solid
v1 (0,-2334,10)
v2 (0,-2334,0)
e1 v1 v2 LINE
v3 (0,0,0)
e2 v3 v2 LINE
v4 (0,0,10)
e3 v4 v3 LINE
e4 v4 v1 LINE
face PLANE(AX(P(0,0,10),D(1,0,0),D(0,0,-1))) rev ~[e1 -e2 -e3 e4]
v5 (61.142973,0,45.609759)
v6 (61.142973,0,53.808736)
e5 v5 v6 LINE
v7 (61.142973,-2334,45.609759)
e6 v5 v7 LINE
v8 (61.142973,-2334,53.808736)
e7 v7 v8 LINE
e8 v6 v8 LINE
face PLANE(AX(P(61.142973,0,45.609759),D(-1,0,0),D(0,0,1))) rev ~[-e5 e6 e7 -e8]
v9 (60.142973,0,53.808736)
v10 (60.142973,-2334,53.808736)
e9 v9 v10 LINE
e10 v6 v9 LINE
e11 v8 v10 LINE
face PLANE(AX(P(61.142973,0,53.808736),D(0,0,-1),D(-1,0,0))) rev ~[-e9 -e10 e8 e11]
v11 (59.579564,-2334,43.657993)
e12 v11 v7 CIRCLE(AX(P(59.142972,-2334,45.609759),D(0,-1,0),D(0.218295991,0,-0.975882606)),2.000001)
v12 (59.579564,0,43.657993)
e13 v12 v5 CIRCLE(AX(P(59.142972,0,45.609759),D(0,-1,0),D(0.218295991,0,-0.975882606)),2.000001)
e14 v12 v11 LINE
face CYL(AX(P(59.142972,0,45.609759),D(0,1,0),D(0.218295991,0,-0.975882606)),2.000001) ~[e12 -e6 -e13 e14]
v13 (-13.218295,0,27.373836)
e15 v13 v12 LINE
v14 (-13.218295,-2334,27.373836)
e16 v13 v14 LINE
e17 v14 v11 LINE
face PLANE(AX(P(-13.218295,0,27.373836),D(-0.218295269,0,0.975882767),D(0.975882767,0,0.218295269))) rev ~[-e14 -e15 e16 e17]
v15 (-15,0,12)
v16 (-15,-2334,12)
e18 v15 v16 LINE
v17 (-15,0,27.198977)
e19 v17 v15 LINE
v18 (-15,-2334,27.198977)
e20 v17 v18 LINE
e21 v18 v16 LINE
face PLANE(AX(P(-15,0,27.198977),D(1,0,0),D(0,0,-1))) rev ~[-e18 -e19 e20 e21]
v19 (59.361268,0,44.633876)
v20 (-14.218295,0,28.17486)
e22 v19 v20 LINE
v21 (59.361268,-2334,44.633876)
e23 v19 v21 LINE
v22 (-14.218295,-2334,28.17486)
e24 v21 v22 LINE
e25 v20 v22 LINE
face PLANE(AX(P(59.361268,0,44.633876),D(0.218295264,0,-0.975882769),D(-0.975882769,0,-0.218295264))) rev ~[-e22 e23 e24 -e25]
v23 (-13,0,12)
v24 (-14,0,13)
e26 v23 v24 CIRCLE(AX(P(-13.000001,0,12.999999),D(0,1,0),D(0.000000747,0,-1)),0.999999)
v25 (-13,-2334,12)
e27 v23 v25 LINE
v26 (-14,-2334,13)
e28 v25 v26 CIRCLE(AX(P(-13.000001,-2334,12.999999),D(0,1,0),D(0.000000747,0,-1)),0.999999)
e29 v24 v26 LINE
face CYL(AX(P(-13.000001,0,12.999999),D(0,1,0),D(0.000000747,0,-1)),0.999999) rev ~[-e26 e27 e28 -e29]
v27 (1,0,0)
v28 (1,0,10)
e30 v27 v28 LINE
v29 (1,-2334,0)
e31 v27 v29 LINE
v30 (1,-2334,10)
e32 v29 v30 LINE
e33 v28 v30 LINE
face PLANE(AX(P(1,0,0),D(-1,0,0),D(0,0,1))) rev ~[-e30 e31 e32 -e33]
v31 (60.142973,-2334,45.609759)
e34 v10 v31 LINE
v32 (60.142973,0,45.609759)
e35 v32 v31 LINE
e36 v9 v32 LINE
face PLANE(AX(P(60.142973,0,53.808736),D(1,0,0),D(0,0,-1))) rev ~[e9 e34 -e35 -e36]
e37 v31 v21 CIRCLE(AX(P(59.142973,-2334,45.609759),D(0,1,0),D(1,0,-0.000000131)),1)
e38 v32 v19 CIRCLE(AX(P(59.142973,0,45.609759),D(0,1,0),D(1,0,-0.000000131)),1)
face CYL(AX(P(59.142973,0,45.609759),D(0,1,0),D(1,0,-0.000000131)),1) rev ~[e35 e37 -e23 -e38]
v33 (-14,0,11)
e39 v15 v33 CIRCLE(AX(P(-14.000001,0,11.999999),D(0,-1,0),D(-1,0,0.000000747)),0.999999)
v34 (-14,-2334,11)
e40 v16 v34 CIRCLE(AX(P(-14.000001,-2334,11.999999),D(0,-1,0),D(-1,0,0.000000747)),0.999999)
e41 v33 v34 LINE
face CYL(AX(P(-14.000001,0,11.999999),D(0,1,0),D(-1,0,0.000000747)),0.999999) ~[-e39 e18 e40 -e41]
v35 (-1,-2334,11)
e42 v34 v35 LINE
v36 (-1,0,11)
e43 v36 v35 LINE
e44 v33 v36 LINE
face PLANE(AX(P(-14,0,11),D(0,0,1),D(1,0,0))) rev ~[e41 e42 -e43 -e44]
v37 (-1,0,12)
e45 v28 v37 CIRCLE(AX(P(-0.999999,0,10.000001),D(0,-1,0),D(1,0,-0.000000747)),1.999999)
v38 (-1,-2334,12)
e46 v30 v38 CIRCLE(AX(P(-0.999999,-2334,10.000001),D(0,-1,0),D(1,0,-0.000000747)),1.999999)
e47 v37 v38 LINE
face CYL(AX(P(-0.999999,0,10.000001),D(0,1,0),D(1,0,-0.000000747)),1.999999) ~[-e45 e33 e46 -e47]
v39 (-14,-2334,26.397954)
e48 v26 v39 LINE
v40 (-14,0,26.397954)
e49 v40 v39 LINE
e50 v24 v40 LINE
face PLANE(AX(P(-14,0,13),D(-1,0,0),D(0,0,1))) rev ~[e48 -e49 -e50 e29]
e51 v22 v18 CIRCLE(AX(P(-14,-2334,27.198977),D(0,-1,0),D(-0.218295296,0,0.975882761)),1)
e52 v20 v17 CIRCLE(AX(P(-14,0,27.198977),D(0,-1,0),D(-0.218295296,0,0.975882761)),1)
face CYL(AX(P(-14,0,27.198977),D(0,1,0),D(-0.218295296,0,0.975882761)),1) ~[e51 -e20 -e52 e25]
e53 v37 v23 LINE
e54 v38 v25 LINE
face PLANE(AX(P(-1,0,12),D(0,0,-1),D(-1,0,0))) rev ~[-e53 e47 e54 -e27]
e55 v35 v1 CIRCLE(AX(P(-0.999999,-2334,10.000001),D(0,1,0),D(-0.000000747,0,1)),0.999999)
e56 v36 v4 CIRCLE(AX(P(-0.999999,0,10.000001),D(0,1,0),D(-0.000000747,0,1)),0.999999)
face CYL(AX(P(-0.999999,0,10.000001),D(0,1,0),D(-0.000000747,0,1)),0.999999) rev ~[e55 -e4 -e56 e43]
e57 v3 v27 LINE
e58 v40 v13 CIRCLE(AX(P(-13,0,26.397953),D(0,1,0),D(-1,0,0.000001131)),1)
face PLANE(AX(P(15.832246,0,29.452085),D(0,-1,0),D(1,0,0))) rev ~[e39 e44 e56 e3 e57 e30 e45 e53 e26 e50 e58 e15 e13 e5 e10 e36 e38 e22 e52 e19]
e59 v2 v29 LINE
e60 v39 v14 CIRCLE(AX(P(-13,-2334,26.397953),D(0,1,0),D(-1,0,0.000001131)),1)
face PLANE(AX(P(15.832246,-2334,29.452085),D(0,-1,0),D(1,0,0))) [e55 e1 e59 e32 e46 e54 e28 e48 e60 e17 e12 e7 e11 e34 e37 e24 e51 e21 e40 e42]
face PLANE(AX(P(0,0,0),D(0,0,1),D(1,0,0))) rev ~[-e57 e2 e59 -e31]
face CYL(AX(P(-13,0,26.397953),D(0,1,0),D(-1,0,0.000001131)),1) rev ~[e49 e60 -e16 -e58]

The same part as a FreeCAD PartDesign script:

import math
import FreeCAD as App
import Part
import Sketcher
from FreeCAD import Vector

doc = App.newDocument("Part")
body = doc.addObject("PartDesign::Body", "Body")

# Sketch on XZ plane
sketch1 = body.newObject("Sketcher::SketchObject", "Sketch")
sketch1.AttachmentSupport = (doc.getObject("XZ_Plane"), [""])
sketch1.MapMode = "FlatFace"
sketch1.addGeometry(Part.LineSegment(Vector(0, 10, 0), Vector(0, 0, 0)), False)
sketch1.addGeometry(Part.LineSegment(Vector(0, 0, 0), Vector(1, 0, 0)), False)
sketch1.addGeometry(Part.LineSegment(Vector(1, 0, 0), Vector(1, 10, 0)), False)
sketch1.addGeometry(Part.ArcOfCircle(Part.Circle(Vector(-0.999999, 10.000001, 0), Vector(0, 0, 1), 1.999999), math.radians(-0.000043), math.radians(90.000043)), False)
sketch1.addGeometry(Part.LineSegment(Vector(-1, 12, 0), Vector(-13, 12, 0)), False)
sketch1.addGeometry(Part.ArcOfCircle(Part.Circle(Vector(-13.000001, 12.999999, 0), Vector(0, 0, 1), 0.999999), math.radians(179.999957), math.radians(270.000043)), False)
sketch1.addGeometry(Part.LineSegment(Vector(-14, 13, 0), Vector(-14, 26.397954, 0)), False)
sketch1.addGeometry(Part.ArcOfCircle(Part.Circle(Vector(-13, 26.397953, 0), Vector(0, 0, 1), 1), math.radians(102.608927), math.radians(179.999935)), False)
sketch1.addGeometry(Part.LineSegment(Vector(-13.218295, 27.373836, 0), Vector(59.579564, 43.657993, 0)), False)
sketch1.addGeometry(Part.ArcOfCircle(Part.Circle(Vector(59.142972, 45.609759, 0), Vector(0, 0, 1), 2.000001), math.radians(-77.391032), math.radians(-0.000013)), False)
sketch1.addGeometry(Part.LineSegment(Vector(61.142973, 45.609759, 0), Vector(61.142973, 53.808736, 0)), False)
sketch1.addGeometry(Part.LineSegment(Vector(61.142973, 53.808736, 0), Vector(60.142973, 53.808736, 0)), False)
sketch1.addGeometry(Part.LineSegment(Vector(60.142973, 53.808736, 0), Vector(60.142973, 45.609759, 0)), False)
sketch1.addGeometry(Part.ArcOfCircle(Part.Circle(Vector(59.142973, 45.609759, 0), Vector(0, 0, 1), 1), math.radians(-77.391073), math.radians(-0.000008)), False)
sketch1.addGeometry(Part.LineSegment(Vector(59.361268, 44.633876, 0), Vector(-14.218295, 28.17486, 0)), False)
sketch1.addGeometry(Part.ArcOfCircle(Part.Circle(Vector(-14, 27.198977, 0), Vector(0, 0, 1), 1), math.radians(102.608927), math.radians(179.999992)), False)
sketch1.addGeometry(Part.LineSegment(Vector(-15, 27.198977, 0), Vector(-15, 12, 0)), False)
sketch1.addGeometry(Part.ArcOfCircle(Part.Circle(Vector(-14.000001, 11.999999, 0), Vector(0, 0, 1), 0.999999), math.radians(179.999957), math.radians(270.000043)), False)
sketch1.addGeometry(Part.LineSegment(Vector(-14, 11, 0), Vector(-1, 11, 0)), False)
sketch1.addGeometry(Part.ArcOfCircle(Part.Circle(Vector(-0.999999, 10.000001, 0), Vector(0, 0, 1), 0.999999), math.radians(-0.000043), math.radians(90.000043)), False)
sketch1.addConstraint(Sketcher.Constraint("Coincident", 0, 2, 1, 1))
sketch1.addConstraint(Sketcher.Constraint("Coincident", 1, 2, 2, 1))
sketch1.addConstraint(Sketcher.Constraint("Coincident", 2, 2, 3, 1))
sketch1.addConstraint(Sketcher.Constraint("Coincident", 3, 2, 4, 1))
sketch1.addConstraint(Sketcher.Constraint("Coincident", 4, 2, 5, 2))
sketch1.addConstraint(Sketcher.Constraint("Coincident", 5, 1, 6, 1))
sketch1.addConstraint(Sketcher.Constraint("Coincident", 6, 2, 7, 2))
sketch1.addConstraint(Sketcher.Constraint("Coincident", 7, 1, 8, 1))
sketch1.addConstraint(Sketcher.Constraint("Coincident", 8, 2, 9, 1))
sketch1.addConstraint(Sketcher.Constraint("Coincident", 9, 2, 10, 1))
sketch1.addConstraint(Sketcher.Constraint("Coincident", 10, 2, 11, 1))
sketch1.addConstraint(Sketcher.Constraint("Coincident", 11, 2, 12, 1))
sketch1.addConstraint(Sketcher.Constraint("Coincident", 12, 2, 13, 2))
sketch1.addConstraint(Sketcher.Constraint("Coincident", 13, 1, 14, 1))
sketch1.addConstraint(Sketcher.Constraint("Coincident", 14, 2, 15, 1))
sketch1.addConstraint(Sketcher.Constraint("Coincident", 15, 2, 16, 1))
sketch1.addConstraint(Sketcher.Constraint("Coincident", 16, 2, 17, 1))
sketch1.addConstraint(Sketcher.Constraint("Coincident", 17, 2, 18, 1))
sketch1.addConstraint(Sketcher.Constraint("Coincident", 18, 2, 19, 2))
sketch1.addConstraint(Sketcher.Constraint("Coincident", 19, 1, 0, 1))
sketch1.addConstraint(Sketcher.Constraint("Vertical", 0))
sketch1.addConstraint(Sketcher.Constraint("Horizontal", 1))
sketch1.addConstraint(Sketcher.Constraint("Vertical", 2))
sketch1.addConstraint(Sketcher.Constraint("Horizontal", 4))
sketch1.addConstraint(Sketcher.Constraint("Vertical", 6))
sketch1.addConstraint(Sketcher.Constraint("Vertical", 10))
sketch1.addConstraint(Sketcher.Constraint("Horizontal", 11))
sketch1.addConstraint(Sketcher.Constraint("Vertical", 12))
sketch1.addConstraint(Sketcher.Constraint("Vertical", 16))
sketch1.addConstraint(Sketcher.Constraint("Horizontal", 18))
sketch1.addConstraint(Sketcher.Constraint("Coincident", 0, 2, -1, 1))
sketch1.addConstraint(Sketcher.Constraint("Coincident", 13, 3, 9, 3))
sketch1.addConstraint(Sketcher.Constraint("Coincident", 19, 3, 3, 3))
sketch1.addConstraint(Sketcher.Constraint("Radius", 3, 1.999999))
sketch1.addConstraint(Sketcher.Constraint("Radius", 5, 0.999999))
sketch1.addConstraint(Sketcher.Constraint("Radius", 7, 1.0))
sketch1.addConstraint(Sketcher.Constraint("Radius", 9, 2.000001))
sketch1.addConstraint(Sketcher.Constraint("Radius", 13, 1.0))
sketch1.addConstraint(Sketcher.Constraint("Radius", 15, 1.0))
sketch1.addConstraint(Sketcher.Constraint("Radius", 17, 0.999999))
sketch1.addConstraint(Sketcher.Constraint("Radius", 19, 0.999999))
sketch1.addConstraint(Sketcher.Constraint("DistanceX", 4, 2, 4, 1, 12.0))
sketch1.addConstraint(Sketcher.Constraint("DistanceX", 18, 1, 18, 2, 13.0))
sketch1.addConstraint(Sketcher.Constraint("DistanceY", 0, 2, 0, 1, 10.0))
sketch1.addConstraint(Sketcher.Constraint("DistanceY", 2, 1, 2, 2, 10.0))
sketch1.addConstraint(Sketcher.Constraint("DistanceY", -1, 1, 3, 3, 10.000001))
sketch1.addConstraint(Sketcher.Constraint("DistanceX", 5, 3, -1, 1, 13.000001))
sketch1.addConstraint(Sketcher.Constraint("DistanceX", 15, 3, -1, 1, 14.0))
sketch1.addConstraint(Sketcher.Constraint("DistanceX", 3, 2, -1, 1, 1.0))
sketch1.addConstraint(Sketcher.Constraint("DistanceY", -1, 1, 5, 1, 13.0))
sketch1.addConstraint(Sketcher.Constraint("DistanceY", -1, 1, 16, 2, 12.0))
sketch1.addConstraint(Sketcher.Constraint("DistanceX", 17, 2, -1, 1, 14.0))
sketch1.addConstraint(Sketcher.Constraint("DistanceX", 14, 2, 7, 1, 1.0))
sketch1.addConstraint(Sketcher.Constraint("Distance", 8, 74.596931))
sketch1.addConstraint(Sketcher.Constraint("DistanceY", 6, 1, 6, 2, 13.397954))
sketch1.addConstraint(Sketcher.Constraint("DistanceY", 10, 1, 10, 2, 8.198977))
sketch1.addConstraint(Sketcher.Constraint("DistanceY", 12, 2, 12, 1, 8.198977))
sketch1.addConstraint(Sketcher.Constraint("DistanceY", 16, 2, 16, 1, 15.198977))
sketch1.addConstraint(Sketcher.Constraint("DistanceX", -1, 1, 9, 3, 59.142972))
sketch1.addConstraint(Sketcher.Constraint("DistanceY", -1, 1, 9, 3, 45.609759))
sketch1.addConstraint(Sketcher.Constraint("DistanceY", -1, 1, 9, 2, 45.609759))
sketch1.addConstraint(Sketcher.Constraint("DistanceX", -1, 1, 13, 1, 59.361268))
sketch1.addConstraint(Sketcher.Constraint("DistanceY", -1, 1, 14, 2, 28.17486))
sketch1.addConstraint(Sketcher.Constraint("DistanceY", 3, 3, 7, 3, 16.397951))
sketch1.addConstraint(Sketcher.Constraint("DistanceY", 15, 3, 7, 1, 0.174859))
pad1 = body.newObject("PartDesign::Pad", "Pad")
pad1.Profile = sketch1
pad1.Length = 2334

doc.recompute()
